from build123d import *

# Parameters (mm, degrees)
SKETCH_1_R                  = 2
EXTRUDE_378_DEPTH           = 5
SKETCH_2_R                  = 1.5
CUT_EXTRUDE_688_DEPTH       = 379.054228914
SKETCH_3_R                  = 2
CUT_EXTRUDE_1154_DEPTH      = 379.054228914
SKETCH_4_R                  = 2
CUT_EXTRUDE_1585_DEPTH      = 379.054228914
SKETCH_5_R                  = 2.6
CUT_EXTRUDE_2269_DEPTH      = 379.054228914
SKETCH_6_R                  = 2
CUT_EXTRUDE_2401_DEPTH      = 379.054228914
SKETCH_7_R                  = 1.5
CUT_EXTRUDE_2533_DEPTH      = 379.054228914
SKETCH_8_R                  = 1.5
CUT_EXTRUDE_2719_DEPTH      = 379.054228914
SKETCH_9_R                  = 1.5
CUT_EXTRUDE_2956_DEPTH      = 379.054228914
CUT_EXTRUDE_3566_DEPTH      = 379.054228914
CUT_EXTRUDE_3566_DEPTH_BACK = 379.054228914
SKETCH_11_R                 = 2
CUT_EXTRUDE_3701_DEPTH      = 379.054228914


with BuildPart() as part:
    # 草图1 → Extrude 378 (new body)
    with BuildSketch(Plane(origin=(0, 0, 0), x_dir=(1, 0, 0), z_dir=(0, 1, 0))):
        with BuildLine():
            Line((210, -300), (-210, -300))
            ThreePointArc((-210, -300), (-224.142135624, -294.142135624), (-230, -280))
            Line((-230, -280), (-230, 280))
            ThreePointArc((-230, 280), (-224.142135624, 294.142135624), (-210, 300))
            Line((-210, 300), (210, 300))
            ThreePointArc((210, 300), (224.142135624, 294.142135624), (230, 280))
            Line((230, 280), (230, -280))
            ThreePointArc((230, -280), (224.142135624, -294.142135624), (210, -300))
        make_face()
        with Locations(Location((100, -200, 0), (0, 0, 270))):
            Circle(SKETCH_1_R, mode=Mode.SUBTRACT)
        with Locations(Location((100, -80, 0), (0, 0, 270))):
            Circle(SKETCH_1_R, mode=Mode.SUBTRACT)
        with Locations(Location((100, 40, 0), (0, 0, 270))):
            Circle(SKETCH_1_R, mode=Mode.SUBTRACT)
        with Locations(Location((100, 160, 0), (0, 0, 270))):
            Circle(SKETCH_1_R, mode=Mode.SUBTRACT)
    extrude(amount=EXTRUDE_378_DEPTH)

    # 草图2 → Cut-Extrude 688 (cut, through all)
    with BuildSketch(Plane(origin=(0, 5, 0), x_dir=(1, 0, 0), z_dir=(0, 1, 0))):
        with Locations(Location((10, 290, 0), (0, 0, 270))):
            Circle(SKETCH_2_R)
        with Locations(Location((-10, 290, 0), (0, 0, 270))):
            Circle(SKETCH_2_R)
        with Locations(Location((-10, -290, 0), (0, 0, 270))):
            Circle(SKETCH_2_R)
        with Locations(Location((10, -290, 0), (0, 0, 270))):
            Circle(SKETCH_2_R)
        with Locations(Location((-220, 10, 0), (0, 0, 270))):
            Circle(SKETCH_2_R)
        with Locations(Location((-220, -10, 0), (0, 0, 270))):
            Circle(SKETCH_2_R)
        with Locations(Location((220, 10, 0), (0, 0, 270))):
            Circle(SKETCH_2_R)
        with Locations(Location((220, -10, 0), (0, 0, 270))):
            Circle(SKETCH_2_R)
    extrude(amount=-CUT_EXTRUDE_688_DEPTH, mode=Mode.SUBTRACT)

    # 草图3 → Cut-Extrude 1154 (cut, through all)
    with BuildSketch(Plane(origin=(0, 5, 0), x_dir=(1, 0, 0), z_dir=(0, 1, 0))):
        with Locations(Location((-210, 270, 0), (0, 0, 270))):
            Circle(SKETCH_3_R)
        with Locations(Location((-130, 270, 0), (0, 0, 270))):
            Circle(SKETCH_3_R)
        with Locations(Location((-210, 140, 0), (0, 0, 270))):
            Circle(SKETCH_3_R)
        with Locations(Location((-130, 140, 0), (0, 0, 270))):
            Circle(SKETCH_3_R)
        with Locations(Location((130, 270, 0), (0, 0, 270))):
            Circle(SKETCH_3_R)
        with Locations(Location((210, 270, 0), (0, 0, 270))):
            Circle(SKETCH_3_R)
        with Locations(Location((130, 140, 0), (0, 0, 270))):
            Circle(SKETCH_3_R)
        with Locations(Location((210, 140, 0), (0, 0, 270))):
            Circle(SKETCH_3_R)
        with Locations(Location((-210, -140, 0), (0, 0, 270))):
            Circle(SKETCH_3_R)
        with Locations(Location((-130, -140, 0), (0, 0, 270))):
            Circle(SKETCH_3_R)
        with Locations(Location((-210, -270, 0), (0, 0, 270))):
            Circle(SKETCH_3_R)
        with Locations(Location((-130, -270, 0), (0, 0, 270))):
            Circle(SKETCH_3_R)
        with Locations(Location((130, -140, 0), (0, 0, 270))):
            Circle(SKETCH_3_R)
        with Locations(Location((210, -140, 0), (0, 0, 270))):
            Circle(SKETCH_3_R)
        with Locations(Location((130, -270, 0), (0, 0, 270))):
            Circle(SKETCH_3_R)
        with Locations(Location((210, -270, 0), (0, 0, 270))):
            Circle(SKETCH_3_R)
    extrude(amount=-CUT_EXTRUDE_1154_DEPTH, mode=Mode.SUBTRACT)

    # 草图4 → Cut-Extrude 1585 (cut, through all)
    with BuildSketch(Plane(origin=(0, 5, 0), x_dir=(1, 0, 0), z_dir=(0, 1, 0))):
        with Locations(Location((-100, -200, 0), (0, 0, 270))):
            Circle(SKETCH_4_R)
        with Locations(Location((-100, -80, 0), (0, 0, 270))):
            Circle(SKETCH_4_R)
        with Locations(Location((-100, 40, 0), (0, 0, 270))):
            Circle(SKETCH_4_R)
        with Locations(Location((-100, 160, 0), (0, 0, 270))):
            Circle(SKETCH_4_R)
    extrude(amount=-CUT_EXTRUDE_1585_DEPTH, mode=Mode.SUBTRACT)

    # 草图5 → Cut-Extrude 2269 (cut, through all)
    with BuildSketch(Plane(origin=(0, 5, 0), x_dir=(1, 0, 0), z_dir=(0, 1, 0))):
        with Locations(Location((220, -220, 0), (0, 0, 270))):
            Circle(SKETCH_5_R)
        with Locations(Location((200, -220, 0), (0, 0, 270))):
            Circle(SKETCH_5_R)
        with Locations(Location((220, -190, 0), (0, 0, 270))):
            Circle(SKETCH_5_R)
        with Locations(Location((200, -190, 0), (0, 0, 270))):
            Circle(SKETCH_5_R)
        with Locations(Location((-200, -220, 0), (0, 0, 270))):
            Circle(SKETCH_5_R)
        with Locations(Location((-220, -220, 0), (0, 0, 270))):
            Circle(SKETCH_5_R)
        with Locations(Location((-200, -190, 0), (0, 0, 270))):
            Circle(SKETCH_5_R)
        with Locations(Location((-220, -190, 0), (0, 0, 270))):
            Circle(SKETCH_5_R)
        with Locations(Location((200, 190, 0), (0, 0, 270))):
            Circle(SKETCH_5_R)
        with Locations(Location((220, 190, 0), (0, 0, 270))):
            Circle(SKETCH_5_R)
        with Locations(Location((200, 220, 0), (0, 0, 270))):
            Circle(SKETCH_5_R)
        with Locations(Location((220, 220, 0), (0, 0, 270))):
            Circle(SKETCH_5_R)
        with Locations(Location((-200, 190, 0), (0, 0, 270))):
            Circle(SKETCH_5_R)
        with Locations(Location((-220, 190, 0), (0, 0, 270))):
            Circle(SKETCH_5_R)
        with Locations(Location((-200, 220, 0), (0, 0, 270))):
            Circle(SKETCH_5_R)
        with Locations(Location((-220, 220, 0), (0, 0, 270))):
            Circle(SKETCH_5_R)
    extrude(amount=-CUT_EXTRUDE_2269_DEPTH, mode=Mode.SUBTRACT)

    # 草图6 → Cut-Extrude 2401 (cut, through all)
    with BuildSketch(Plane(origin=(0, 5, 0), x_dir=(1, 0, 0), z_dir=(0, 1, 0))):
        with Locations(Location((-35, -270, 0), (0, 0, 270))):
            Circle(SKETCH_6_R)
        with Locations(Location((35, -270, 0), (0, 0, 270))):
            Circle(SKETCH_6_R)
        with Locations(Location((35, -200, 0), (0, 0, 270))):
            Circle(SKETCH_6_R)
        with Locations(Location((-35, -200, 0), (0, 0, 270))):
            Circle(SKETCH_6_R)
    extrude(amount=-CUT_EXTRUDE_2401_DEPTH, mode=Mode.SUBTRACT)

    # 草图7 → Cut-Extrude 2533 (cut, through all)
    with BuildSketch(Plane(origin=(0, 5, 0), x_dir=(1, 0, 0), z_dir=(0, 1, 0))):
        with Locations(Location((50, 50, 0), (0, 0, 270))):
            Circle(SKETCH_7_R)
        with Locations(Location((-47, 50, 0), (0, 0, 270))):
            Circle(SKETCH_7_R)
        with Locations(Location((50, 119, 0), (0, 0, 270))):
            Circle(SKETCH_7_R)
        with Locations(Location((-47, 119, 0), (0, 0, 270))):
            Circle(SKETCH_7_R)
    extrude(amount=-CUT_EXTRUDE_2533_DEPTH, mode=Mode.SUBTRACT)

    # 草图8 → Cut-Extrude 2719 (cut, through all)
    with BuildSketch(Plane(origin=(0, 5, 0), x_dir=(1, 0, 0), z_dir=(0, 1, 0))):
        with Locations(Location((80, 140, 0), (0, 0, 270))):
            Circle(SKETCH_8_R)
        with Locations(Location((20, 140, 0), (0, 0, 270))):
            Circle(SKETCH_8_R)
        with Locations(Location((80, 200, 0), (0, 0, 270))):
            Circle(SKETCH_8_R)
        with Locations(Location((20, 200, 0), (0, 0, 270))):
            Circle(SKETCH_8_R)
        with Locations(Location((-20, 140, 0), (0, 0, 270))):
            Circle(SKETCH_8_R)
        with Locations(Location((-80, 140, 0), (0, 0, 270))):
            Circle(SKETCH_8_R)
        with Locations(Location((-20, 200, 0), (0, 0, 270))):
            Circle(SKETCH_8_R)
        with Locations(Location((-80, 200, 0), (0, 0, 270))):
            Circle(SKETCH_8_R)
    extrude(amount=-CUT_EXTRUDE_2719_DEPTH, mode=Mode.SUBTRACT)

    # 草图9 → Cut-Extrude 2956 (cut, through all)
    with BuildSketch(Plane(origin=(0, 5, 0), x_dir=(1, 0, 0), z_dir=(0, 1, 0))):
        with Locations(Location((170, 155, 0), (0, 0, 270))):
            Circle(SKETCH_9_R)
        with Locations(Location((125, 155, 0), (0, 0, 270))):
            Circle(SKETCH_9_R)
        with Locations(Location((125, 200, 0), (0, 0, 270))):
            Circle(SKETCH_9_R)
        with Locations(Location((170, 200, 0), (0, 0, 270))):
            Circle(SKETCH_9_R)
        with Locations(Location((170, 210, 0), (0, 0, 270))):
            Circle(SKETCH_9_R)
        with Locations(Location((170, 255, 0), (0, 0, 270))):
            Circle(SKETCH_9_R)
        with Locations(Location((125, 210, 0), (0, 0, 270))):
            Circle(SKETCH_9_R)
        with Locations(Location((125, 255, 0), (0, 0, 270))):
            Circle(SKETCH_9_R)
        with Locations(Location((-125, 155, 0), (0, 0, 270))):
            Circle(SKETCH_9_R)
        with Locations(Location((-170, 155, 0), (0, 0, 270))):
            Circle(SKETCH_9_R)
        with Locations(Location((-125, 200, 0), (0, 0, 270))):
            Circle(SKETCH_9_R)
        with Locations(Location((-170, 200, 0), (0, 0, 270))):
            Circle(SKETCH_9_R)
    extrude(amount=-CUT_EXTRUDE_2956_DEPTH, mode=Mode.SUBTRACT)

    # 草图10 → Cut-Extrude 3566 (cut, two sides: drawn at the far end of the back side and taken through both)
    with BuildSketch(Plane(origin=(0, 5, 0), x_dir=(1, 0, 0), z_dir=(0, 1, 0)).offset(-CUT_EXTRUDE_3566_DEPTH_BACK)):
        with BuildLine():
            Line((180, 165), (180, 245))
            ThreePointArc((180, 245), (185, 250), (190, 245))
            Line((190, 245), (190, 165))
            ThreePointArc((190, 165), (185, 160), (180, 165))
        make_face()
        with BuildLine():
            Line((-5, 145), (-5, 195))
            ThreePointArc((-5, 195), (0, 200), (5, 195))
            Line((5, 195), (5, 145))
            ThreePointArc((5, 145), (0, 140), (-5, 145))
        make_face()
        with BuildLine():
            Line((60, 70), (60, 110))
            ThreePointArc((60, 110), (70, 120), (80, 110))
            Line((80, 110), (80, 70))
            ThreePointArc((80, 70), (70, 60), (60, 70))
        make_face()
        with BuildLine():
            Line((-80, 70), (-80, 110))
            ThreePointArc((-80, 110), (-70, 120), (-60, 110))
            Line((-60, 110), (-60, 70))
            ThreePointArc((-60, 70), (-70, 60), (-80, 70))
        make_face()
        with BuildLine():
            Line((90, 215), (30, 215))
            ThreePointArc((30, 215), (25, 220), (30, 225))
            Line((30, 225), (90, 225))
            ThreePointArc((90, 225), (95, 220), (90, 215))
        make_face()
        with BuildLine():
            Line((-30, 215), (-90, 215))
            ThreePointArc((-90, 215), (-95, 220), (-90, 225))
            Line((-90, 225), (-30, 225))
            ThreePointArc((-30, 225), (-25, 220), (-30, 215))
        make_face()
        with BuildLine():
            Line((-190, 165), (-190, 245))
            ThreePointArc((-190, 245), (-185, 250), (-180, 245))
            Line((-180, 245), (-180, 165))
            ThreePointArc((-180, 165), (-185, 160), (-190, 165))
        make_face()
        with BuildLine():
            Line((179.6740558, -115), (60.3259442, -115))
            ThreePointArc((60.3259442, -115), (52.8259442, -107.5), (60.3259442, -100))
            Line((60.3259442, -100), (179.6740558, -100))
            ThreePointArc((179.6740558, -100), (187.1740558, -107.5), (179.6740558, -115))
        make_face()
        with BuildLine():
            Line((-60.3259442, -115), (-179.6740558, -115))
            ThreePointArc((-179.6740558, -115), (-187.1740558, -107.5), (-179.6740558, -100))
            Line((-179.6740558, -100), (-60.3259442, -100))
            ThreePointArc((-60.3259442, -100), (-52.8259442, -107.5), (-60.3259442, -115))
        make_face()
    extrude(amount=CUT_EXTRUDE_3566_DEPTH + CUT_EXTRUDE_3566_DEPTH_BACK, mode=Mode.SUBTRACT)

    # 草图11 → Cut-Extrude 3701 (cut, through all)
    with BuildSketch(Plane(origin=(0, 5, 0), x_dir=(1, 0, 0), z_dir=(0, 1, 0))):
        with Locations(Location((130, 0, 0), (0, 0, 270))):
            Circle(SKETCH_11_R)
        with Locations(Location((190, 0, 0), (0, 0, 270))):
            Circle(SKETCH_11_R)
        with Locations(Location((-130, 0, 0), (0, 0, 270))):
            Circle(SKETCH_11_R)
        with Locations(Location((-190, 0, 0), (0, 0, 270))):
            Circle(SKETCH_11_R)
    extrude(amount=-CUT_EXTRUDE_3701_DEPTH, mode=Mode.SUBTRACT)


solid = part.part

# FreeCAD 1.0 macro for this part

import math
import FreeCAD as App
import Part
import Sketcher

doc = App.newDocument("Part")
body = doc.addObject("PartDesign::Body", "Body")

# Sketch on XZ plane
sketch1 = body.newObject("Sketcher::SketchObject", "Sketch")
sketch1.AttachmentSupport = (doc.getObject("XZ_Plane"), [""])
sketch1.MapMode = "FlatFace"
sketch1.addGeometry([
    Part.LineSegment(App.Vector(-210, 300, 0), App.Vector(210, 300, 0)),  # 0
    Part.ArcOfCircle(Part.Circle(App.Vector(210, 280, 0), App.Vector(0, 0, 1), 20), math.radians(0), math.radians(90)),  # 1
    Part.LineSegment(App.Vector(230, 280, 0), App.Vector(230, -280, 0)),  # 2
    Part.ArcOfCircle(Part.Circle(App.Vector(210, -280, 0), App.Vector(0, 0, 1), 20), math.radians(-90), math.radians(0)),  # 3
    Part.LineSegment(App.Vector(210, -300, 0), App.Vector(-210, -300, 0)),  # 4
    Part.ArcOfCircle(Part.Circle(App.Vector(-210, -280, 0), App.Vector(0, 0, 1), 20), math.radians(180), math.radians(270)),  # 5
    Part.LineSegment(App.Vector(-230, -280, 0), App.Vector(-230, 280, 0)),  # 6
    Part.ArcOfCircle(Part.Circle(App.Vector(-210, 280, 0), App.Vector(0, 0, 1), 20), math.radians(90), math.radians(180)),  # 7
    Part.Circle(App.Vector(100, 200, 0), App.Vector(0, 0, 1), 2),  # 8
    Part.Circle(App.Vector(100, 80, 0), App.Vector(0, 0, 1), 2),  # 9
    Part.Circle(App.Vector(100, -40, 0), App.Vector(0, 0, 1), 2),  # 10
    Part.Circle(App.Vector(100, -160, 0), App.Vector(0, 0, 1), 2),  # 11
], False)
sketch1.addConstraint([
    Sketcher.Constraint("Tangent", 0, 2, 1, 2),
    Sketcher.Constraint("Tangent", 1, 1, 2, 1),
    Sketcher.Constraint("Tangent", 2, 2, 3, 2),
    Sketcher.Constraint("Tangent", 3, 1, 4, 1),
    Sketcher.Constraint("Tangent", 4, 2, 5, 2),
    Sketcher.Constraint("Tangent", 5, 1, 6, 1),
    Sketcher.Constraint("Tangent", 6, 2, 7, 2),
    Sketcher.Constraint("Tangent", 7, 1, 0, 1),
    Sketcher.Constraint("Horizontal", 0),
    Sketcher.Constraint("Vertical", 2),
    Sketcher.Constraint("Horizontal", 4),
    Sketcher.Constraint("Vertical", 6),
    Sketcher.Constraint("Equal", 1, 3),
    Sketcher.Constraint("Equal", 3, 5),
    Sketcher.Constraint("Equal", 5, 7),
    Sketcher.Constraint("Equal", 8, 9),
    Sketcher.Constraint("Equal", 9, 10),
    Sketcher.Constraint("Equal", 10, 11),
    Sketcher.Constraint("Symmetric", 1, 3, 5, 3, -1, 1),
    Sketcher.Constraint("Vertical", 8, 3, 9, 3),
    Sketcher.Constraint("Vertical", 9, 3, 10, 3),
    Sketcher.Constraint("Vertical", 10, 3, 11, 3),
    Sketcher.Constraint("Diameter", 8, 4.0),
    Sketcher.Constraint("Radius", 1, 20.0),
    Sketcher.Constraint("DistanceX", 0, 1, 0, 2, 420.0),
    Sketcher.Constraint("DistanceY", 2, 2, 2, 1, 560.0),
    Sketcher.Constraint("DistanceX", -1, 1, 8, 3, 100.0),
    Sketcher.Constraint("DistanceY", -1, 1, 8, 3, 200.0),
    Sketcher.Constraint("DistanceY", -1, 1, 9, 3, 80.0),
    Sketcher.Constraint("DistanceY", 10, 3, -1, 1, 40.0),
    Sketcher.Constraint("DistanceY", 11, 3, -1, 1, 160.0),
])
pad1 = body.newObject("PartDesign::Pad", "Pad")
pad1.Profile = sketch1
pad1.Length = 5
pad1.Reversed = True

# Sketch on XZ plane
sketch2 = body.newObject("Sketcher::SketchObject", "Sketch001")
sketch2.AttachmentSupport = (doc.getObject("XZ_Plane"), [""])
sketch2.MapMode = "FlatFace"
sketch2.AttachmentOffset = App.Placement(App.Vector(0, 0, -5), App.Rotation())
sketch2.addGeometry([
    Part.Circle(App.Vector(10, -290, 0), App.Vector(0, 0, 1), 1.5),  # 0
    Part.Circle(App.Vector(-10, -290, 0), App.Vector(0, 0, 1), 1.5),  # 1
    Part.Circle(App.Vector(-10, 290, 0), App.Vector(0, 0, 1), 1.5),  # 2
    Part.Circle(App.Vector(10, 290, 0), App.Vector(0, 0, 1), 1.5),  # 3
    Part.Circle(App.Vector(-220, -10, 0), App.Vector(0, 0, 1), 1.5),  # 4
    Part.Circle(App.Vector(-220, 10, 0), App.Vector(0, 0, 1), 1.5),  # 5
    Part.Circle(App.Vector(220, -10, 0), App.Vector(0, 0, 1), 1.5),  # 6
    Part.Circle(App.Vector(220, 10, 0), App.Vector(0, 0, 1), 1.5),  # 7
], False)
sketch2.addConstraint([
    Sketcher.Constraint("Equal", 0, 1),
    Sketcher.Constraint("Equal", 1, 2),
    Sketcher.Constraint("Equal", 2, 3),
    Sketcher.Constraint("Equal", 3, 4),
    Sketcher.Constraint("Equal", 4, 5),
    Sketcher.Constraint("Equal", 5, 6),
    Sketcher.Constraint("Equal", 6, 7),
    Sketcher.Constraint("Symmetric", 0, 3, 2, 3, -1, 1),
    Sketcher.Constraint("Symmetric", 1, 3, 3, 3, -1, 1),
    Sketcher.Constraint("Symmetric", 5, 3, 6, 3, -1, 1),
    Sketcher.Constraint("Symmetric", 4, 3, 7, 3, -1, 1),
    Sketcher.Constraint("Symmetric", 0, 3, 1, 3, -2),
    Sketcher.Constraint("Symmetric", 4, 3, 6, 3, -2),
    Sketcher.Constraint("Diameter", 0, 3.0),
    Sketcher.Constraint("DistanceX", -1, 1, 0, 3, 10.0),
    Sketcher.Constraint("DistanceY", 0, 3, -1, 1, 290.0),
    Sketcher.Constraint("DistanceX", 4, 3, -1, 1, 220.0),
    Sketcher.Constraint("DistanceY", 4, 3, -1, 1, 10.0),
])
pocket1 = body.newObject("PartDesign::Pocket", "Pocket")
pocket1.Profile = sketch2
pocket1.Type = "ThroughAll"
pocket1.Reversed = True

# Sketch on XZ plane
sketch3 = body.newObject("Sketcher::SketchObject", "Sketch002")
sketch3.AttachmentSupport = (doc.getObject("XZ_Plane"), [""])
sketch3.MapMode = "FlatFace"
sketch3.AttachmentOffset = App.Placement(App.Vector(0, 0, -5), App.Rotation())
sketch3.addGeometry([
    Part.Circle(App.Vector(-210, -270, 0), App.Vector(0, 0, 1), 2),  # 0
    Part.Circle(App.Vector(-130, -270, 0), App.Vector(0, 0, 1), 2),  # 1
    Part.Circle(App.Vector(-210, -140, 0), App.Vector(0, 0, 1), 2),  # 2
    Part.Circle(App.Vector(-130, -140, 0), App.Vector(0, 0, 1), 2),  # 3
    Part.Circle(App.Vector(130, -270, 0), App.Vector(0, 0, 1), 2),  # 4
    Part.Circle(App.Vector(210, -270, 0), App.Vector(0, 0, 1), 2),  # 5
    Part.Circle(App.Vector(130, -140, 0), App.Vector(0, 0, 1), 2),  # 6
    Part.Circle(App.Vector(210, -140, 0), App.Vector(0, 0, 1), 2),  # 7
    Part.Circle(App.Vector(-210, 140, 0), App.Vector(0, 0, 1), 2),  # 8
    Part.Circle(App.Vector(-130, 140, 0), App.Vector(0, 0, 1), 2),  # 9
    Part.Circle(App.Vector(-210, 270, 0), App.Vector(0, 0, 1), 2),  # 10
    Part.Circle(App.Vector(-130, 270, 0), App.Vector(0, 0, 1), 2),  # 11
    Part.Circle(App.Vector(130, 140, 0), App.Vector(0, 0, 1), 2),  # 12
    Part.Circle(App.Vector(210, 140, 0), App.Vector(0, 0, 1), 2),  # 13
    Part.Circle(App.Vector(130, 270, 0), App.Vector(0, 0, 1), 2),  # 14
    Part.Circle(App.Vector(210, 270, 0), App.Vector(0, 0, 1), 2),  # 15
], False)
sketch3.addConstraint([
    Sketcher.Constraint("Equal", 0, 1),
    Sketcher.Constraint("Equal", 1, 2),
    Sketcher.Constraint("Equal", 2, 3),
    Sketcher.Constraint("Equal", 3, 4),
    Sketcher.Constraint("Equal", 4, 5),
    Sketcher.Constraint("Equal", 5, 6),
    Sketcher.Constraint("Equal", 6, 7),
    Sketcher.Constraint("Equal", 7, 8),
    Sketcher.Constraint("Equal", 8, 9),
    Sketcher.Constraint("Equal", 9, 10),
    Sketcher.Constraint("Equal", 10, 11),
    Sketcher.Constraint("Equal", 11, 12),
    Sketcher.Constraint("Equal", 12, 13),
    Sketcher.Constraint("Equal", 13, 14),
    Sketcher.Constraint("Equal", 14, 15),
    Sketcher.Constraint("Symmetric", 7, 3, 8, 3, -1, 1),
    Sketcher.Constraint("Symmetric", 6, 3, 9, 3, -1, 1),
    Sketcher.Constraint("Symmetric", 5, 3, 10, 3, -1, 1),
    Sketcher.Constraint("Symmetric", 4, 3, 11, 3, -1, 1),
    Sketcher.Constraint("Symmetric", 3, 3, 12, 3, -1, 1),
    Sketcher.Constraint("Symmetric", 2, 3, 13, 3, -1, 1),
    Sketcher.Constraint("Symmetric", 1, 3, 14, 3, -1, 1),
    Sketcher.Constraint("Symmetric", 0, 3, 15, 3, -1, 1),
    Sketcher.Constraint("Symmetric", 1, 3, 4, 3, -2),
    Sketcher.Constraint("Symmetric", 0, 3, 5, 3, -2),
    Sketcher.Constraint("Symmetric", 3, 3, 6, 3, -2),
    Sketcher.Constraint("Symmetric", 2, 3, 7, 3, -2),
    Sketcher.Constraint("Horizontal", 0, 3, 1, 3),
    Sketcher.Constraint("Horizontal", 2, 3, 3, 3),
    Sketcher.Constraint("Vertical", 0, 3, 2, 3),
    Sketcher.Constraint("Vertical", 1, 3, 3, 3),
    Sketcher.Constraint("Diameter", 0, 4.0),
    Sketcher.Constraint("DistanceX", 0, 3, -1, 1, 210.0),
    Sketcher.Constraint("DistanceY", 0, 3, -1, 1, 270.0),
    Sketcher.Constraint("DistanceX", 1, 3, -1, 1, 130.0),
    Sketcher.Constraint("DistanceY", 2, 3, -1, 1, 140.0),
])
pocket2 = body.newObject("PartDesign::Pocket", "Pocket001")
pocket2.Profile = sketch3
pocket2.Type = "ThroughAll"
pocket2.Reversed = True

# Sketch on XZ plane
sketch4 = body.newObject("Sketcher::SketchObject", "Sketch003")
sketch4.AttachmentSupport = (doc.getObject("XZ_Plane"), [""])
sketch4.MapMode = "FlatFace"
sketch4.AttachmentOffset = App.Placement(App.Vector(0, 0, -5), App.Rotation())
sketch4.addGeometry([
    Part.Circle(App.Vector(-100, 200, 0), App.Vector(0, 0, 1), 2),
    Part.Circle(App.Vector(-100, 80, 0), App.Vector(0, 0, 1), 2),
    Part.Circle(App.Vector(-100, -40, 0), App.Vector(0, 0, 1), 2),
    Part.Circle(App.Vector(-100, -160, 0), App.Vector(0, 0, 1), 2),
], False)
sketch4.addConstraint([
    Sketcher.Constraint("Equal", 0, 1),
    Sketcher.Constraint("Equal", 1, 2),
    Sketcher.Constraint("Equal", 2, 3),
    Sketcher.Constraint("Vertical", 0, 3, 1, 3),
    Sketcher.Constraint("Vertical", 1, 3, 2, 3),
    Sketcher.Constraint("Vertical", 2, 3, 3, 3),
    Sketcher.Constraint("Diameter", 0, 4.0),
    Sketcher.Constraint("DistanceX", 0, 3, -1, 1, 100.0),
    Sketcher.Constraint("DistanceY", -1, 1, 0, 3, 200.0),
    Sketcher.Constraint("DistanceY", -1, 1, 1, 3, 80.0),
    Sketcher.Constraint("DistanceY", 2, 3, -1, 1, 40.0),
    Sketcher.Constraint("DistanceY", 3, 3, -1, 1, 160.0),
])
pocket3 = body.newObject("PartDesign::Pocket", "Pocket002")
pocket3.Profile = sketch4
pocket3.Type = "ThroughAll"
pocket3.Reversed = True

# Sketch on XZ plane
sketch5 = body.newObject("Sketcher::SketchObject", "Sketch004")
sketch5.AttachmentSupport = (doc.getObject("XZ_Plane"), [""])
sketch5.MapMode = "FlatFace"
sketch5.AttachmentOffset = App.Placement(App.Vector(0, 0, -5), App.Rotation())
sketch5.addGeometry([
    Part.Circle(App.Vector(220, 220, 0), App.Vector(0, 0, 1), 2.6),  # 0
    Part.Circle(App.Vector(200, 220, 0), App.Vector(0, 0, 1), 2.6),  # 1
    Part.Circle(App.Vector(220, 190, 0), App.Vector(0, 0, 1), 2.6),  # 2
    Part.Circle(App.Vector(200, 190, 0), App.Vector(0, 0, 1), 2.6),  # 3
    Part.Circle(App.Vector(-200, 220, 0), App.Vector(0, 0, 1), 2.6),  # 4
    Part.Circle(App.Vector(-220, 220, 0), App.Vector(0, 0, 1), 2.6),  # 5
    Part.Circle(App.Vector(-200, 190, 0), App.Vector(0, 0, 1), 2.6),  # 6
    Part.Circle(App.Vector(-220, 190, 0), App.Vector(0, 0, 1), 2.6),  # 7
    Part.Circle(App.Vector(200, -190, 0), App.Vector(0, 0, 1), 2.6),  # 8
    Part.Circle(App.Vector(220, -190, 0), App.Vector(0, 0, 1), 2.6),  # 9
    Part.Circle(App.Vector(200, -220, 0), App.Vector(0, 0, 1), 2.6),  # 10
    Part.Circle(App.Vector(220, -220, 0), App.Vector(0, 0, 1), 2.6),  # 11
    Part.Circle(App.Vector(-200, -190, 0), App.Vector(0, 0, 1), 2.6),  # 12
    Part.Circle(App.Vector(-220, -190, 0), App.Vector(0, 0, 1), 2.6),  # 13
    Part.Circle(App.Vector(-200, -220, 0), App.Vector(0, 0, 1), 2.6),  # 14
    Part.Circle(App.Vector(-220, -220, 0), App.Vector(0, 0, 1), 2.6),  # 15
], False)
sketch5.addConstraint([
    Sketcher.Constraint("Equal", 0, 1),
    Sketcher.Constraint("Equal", 1, 2),
    Sketcher.Constraint("Equal", 2, 3),
    Sketcher.Constraint("Equal", 3, 4),
    Sketcher.Constraint("Equal", 4, 5),
    Sketcher.Constraint("Equal", 5, 6),
    Sketcher.Constraint("Equal", 6, 7),
    Sketcher.Constraint("Equal", 7, 8),
    Sketcher.Constraint("Equal", 8, 9),
    Sketcher.Constraint("Equal", 9, 10),
    Sketcher.Constraint("Equal", 10, 11),
    Sketcher.Constraint("Equal", 11, 12),
    Sketcher.Constraint("Equal", 12, 13),
    Sketcher.Constraint("Equal", 13, 14),
    Sketcher.Constraint("Equal", 14, 15),
    Sketcher.Constraint("Symmetric", 6, 3, 8, 3, -1, 1),
    Sketcher.Constraint("Symmetric", 7, 3, 9, 3, -1, 1),
    Sketcher.Constraint("Symmetric", 4, 3, 10, 3, -1, 1),
    Sketcher.Constraint("Symmetric", 5, 3, 11, 3, -1, 1),
    Sketcher.Constraint("Symmetric", 3, 3, 12, 3, -1, 1),
    Sketcher.Constraint("Symmetric", 2, 3, 13, 3, -1, 1),
    Sketcher.Constraint("Symmetric", 1, 3, 14, 3, -1, 1),
    Sketcher.Constraint("Symmetric", 0, 3, 15, 3, -1, 1),
    Sketcher.Constraint("Symmetric", 1, 3, 4, 3, -2),
    Sketcher.Constraint("Symmetric", 0, 3, 5, 3, -2),
    Sketcher.Constraint("Symmetric", 3, 3, 6, 3, -2),
    Sketcher.Constraint("Symmetric", 2, 3, 7, 3, -2),
    Sketcher.Constraint("Horizontal", 0, 3, 1, 3),
    Sketcher.Constraint("Horizontal", 2, 3, 3, 3),
    Sketcher.Constraint("Vertical", 0, 3, 2, 3),
    Sketcher.Constraint("Vertical", 1, 3, 3, 3),
    Sketcher.Constraint("Diameter", 0, 5.2),
    Sketcher.Constraint("DistanceX", -1, 1, 0, 3, 220.0),
    Sketcher.Constraint("DistanceY", -1, 1, 0, 3, 220.0),
    Sketcher.Constraint("DistanceX", -1, 1, 1, 3, 200.0),
    Sketcher.Constraint("DistanceY", -1, 1, 2, 3, 190.0),
])
pocket4 = body.newObject("PartDesign::Pocket", "Pocket003")
pocket4.Profile = sketch5
pocket4.Type = "ThroughAll"
pocket4.Reversed = True

# Sketch on XZ plane
sketch6 = body.newObject("Sketcher::SketchObject", "Sketch005")
sketch6.AttachmentSupport = (doc.getObject("XZ_Plane"), [""])
sketch6.MapMode = "FlatFace"
sketch6.AttachmentOffset = App.Placement(App.Vector(0, 0, -5), App.Rotation())
sketch6.addGeometry([
    Part.Circle(App.Vector(-35, 270, 0), App.Vector(0, 0, 1), 2),
    Part.Circle(App.Vector(35, 270, 0), App.Vector(0, 0, 1), 2),
    Part.Circle(App.Vector(35, 200, 0), App.Vector(0, 0, 1), 2),
    Part.Circle(App.Vector(-35, 200, 0), App.Vector(0, 0, 1), 2),
], False)
sketch6.addConstraint([
    Sketcher.Constraint("Equal", 0, 1),
    Sketcher.Constraint("Equal", 1, 2),
    Sketcher.Constraint("Equal", 2, 3),
    Sketcher.Constraint("Symmetric", 0, 3, 1, 3, -2),
    Sketcher.Constraint("Symmetric", 2, 3, 3, 3, -2),
    Sketcher.Constraint("Vertical", 1, 3, 2, 3),
    Sketcher.Constraint("Diameter", 0, 4.0),
    Sketcher.Constraint("DistanceX", 0, 3, -1, 1, 35.0),
    Sketcher.Constraint("DistanceY", -1, 1, 0, 3, 270.0),
    Sketcher.Constraint("DistanceY", -1, 1, 2, 3, 200.0),
])
pocket5 = body.newObject("PartDesign::Pocket", "Pocket004")
pocket5.Profile = sketch6
pocket5.Type = "ThroughAll"
pocket5.Reversed = True

# Sketch on XZ plane
sketch7 = body.newObject("Sketcher::SketchObject", "Sketch006")
sketch7.AttachmentSupport = (doc.getObject("XZ_Plane"), [""])
sketch7.MapMode = "FlatFace"
sketch7.AttachmentOffset = App.Placement(App.Vector(0, 0, -5), App.Rotation())
sketch7.addGeometry([
    Part.Circle(App.Vector(50, -50, 0), App.Vector(0, 0, 1), 1.5),
    Part.Circle(App.Vector(-47, -50, 0), App.Vector(0, 0, 1), 1.5),
    Part.Circle(App.Vector(50, -119, 0), App.Vector(0, 0, 1), 1.5),
    Part.Circle(App.Vector(-47, -119, 0), App.Vector(0, 0, 1), 1.5),
], False)
sketch7.addConstraint([
    Sketcher.Constraint("Equal", 0, 1),
    Sketcher.Constraint("Equal", 1, 2),
    Sketcher.Constraint("Equal", 2, 3),
    Sketcher.Constraint("Horizontal", 0, 3, 1, 3),
    Sketcher.Constraint("Horizontal", 2, 3, 3, 3),
    Sketcher.Constraint("Vertical", 0, 3, 2, 3),
    Sketcher.Constraint("Vertical", 1, 3, 3, 3),
    Sketcher.Constraint("Diameter", 0, 3.0),
    Sketcher.Constraint("DistanceX", -1, 1, 0, 3, 50.0),
    Sketcher.Constraint("DistanceY", 0, 3, -1, 1, 50.0),
    Sketcher.Constraint("DistanceX", 1, 3, -1, 1, 47.0),
    Sketcher.Constraint("DistanceY", 2, 3, -1, 1, 119.0),
])
pocket6 = body.newObject("PartDesign::Pocket", "Pocket005")
pocket6.Profile = sketch7
pocket6.Type = "ThroughAll"
pocket6.Reversed = True

# Sketch on XZ plane
sketch8 = body.newObject("Sketcher::SketchObject", "Sketch007")
sketch8.AttachmentSupport = (doc.getObject("XZ_Plane"), [""])
sketch8.MapMode = "FlatFace"
sketch8.AttachmentOffset = App.Placement(App.Vector(0, 0, -5), App.Rotation())
sketch8.addGeometry([
    Part.Circle(App.Vector(80, -140, 0), App.Vector(0, 0, 1), 1.5),  # 0
    Part.Circle(App.Vector(20, -140, 0), App.Vector(0, 0, 1), 1.5),  # 1
    Part.Circle(App.Vector(80, -200, 0), App.Vector(0, 0, 1), 1.5),  # 2
    Part.Circle(App.Vector(20, -200, 0), App.Vector(0, 0, 1), 1.5),  # 3
    Part.Circle(App.Vector(-20, -140, 0), App.Vector(0, 0, 1), 1.5),  # 4
    Part.Circle(App.Vector(-80, -140, 0), App.Vector(0, 0, 1), 1.5),  # 5
    Part.Circle(App.Vector(-20, -200, 0), App.Vector(0, 0, 1), 1.5),  # 6
    Part.Circle(App.Vector(-80, -200, 0), App.Vector(0, 0, 1), 1.5),  # 7
], False)
sketch8.addConstraint([
    Sketcher.Constraint("Equal", 0, 1),
    Sketcher.Constraint("Equal", 1, 2),
    Sketcher.Constraint("Equal", 2, 3),
    Sketcher.Constraint("Equal", 3, 4),
    Sketcher.Constraint("Equal", 4, 5),
    Sketcher.Constraint("Equal", 5, 6),
    Sketcher.Constraint("Equal", 6, 7),
    Sketcher.Constraint("Symmetric", 1, 3, 4, 3, -2),
    Sketcher.Constraint("Symmetric", 0, 3, 5, 3, -2),
    Sketcher.Constraint("Symmetric", 3, 3, 6, 3, -2),
    Sketcher.Constraint("Symmetric", 2, 3, 7, 3, -2),
    Sketcher.Constraint("Horizontal", 0, 3, 1, 3),
    Sketcher.Constraint("Horizontal", 2, 3, 3, 3),
    Sketcher.Constraint("Vertical", 0, 3, 2, 3),
    Sketcher.Constraint("Vertical", 1, 3, 3, 3),
    Sketcher.Constraint("Diameter", 0, 3.0),
    Sketcher.Constraint("DistanceX", -1, 1, 0, 3, 80.0),
    Sketcher.Constraint("DistanceY", 0, 3, -1, 1, 140.0),
    Sketcher.Constraint("DistanceX", -1, 1, 1, 3, 20.0),
    Sketcher.Constraint("DistanceY", 2, 3, -1, 1, 200.0),
])
pocket7 = body.newObject("PartDesign::Pocket", "Pocket006")
pocket7.Profile = sketch8
pocket7.Type = "ThroughAll"
pocket7.Reversed = True

# Sketch on XZ plane
sketch9 = body.newObject("Sketcher::SketchObject", "Sketch008")
sketch9.AttachmentSupport = (doc.getObject("XZ_Plane"), [""])
sketch9.MapMode = "FlatFace"
sketch9.AttachmentOffset = App.Placement(App.Vector(0, 0, -5), App.Rotation())
sketch9.addGeometry([
    Part.Circle(App.Vector(170, -155, 0), App.Vector(0, 0, 1), 1.5),  # 0
    Part.Circle(App.Vector(125, -155, 0), App.Vector(0, 0, 1), 1.5),  # 1
    Part.Circle(App.Vector(125, -200, 0), App.Vector(0, 0, 1), 1.5),  # 2
    Part.Circle(App.Vector(170, -200, 0), App.Vector(0, 0, 1), 1.5),  # 3
    Part.Circle(App.Vector(170, -210, 0), App.Vector(0, 0, 1), 1.5),  # 4
    Part.Circle(App.Vector(170, -255, 0), App.Vector(0, 0, 1), 1.5),  # 5
    Part.Circle(App.Vector(125, -210, 0), App.Vector(0, 0, 1), 1.5),  # 6
    Part.Circle(App.Vector(125, -255, 0), App.Vector(0, 0, 1), 1.5),  # 7
    Part.Circle(App.Vector(-125, -155, 0), App.Vector(0, 0, 1), 1.5),  # 8
    Part.Circle(App.Vector(-170, -155, 0), App.Vector(0, 0, 1), 1.5),  # 9
    Part.Circle(App.Vector(-125, -200, 0), App.Vector(0, 0, 1), 1.5),  # 10
    Part.Circle(App.Vector(-170, -200, 0), App.Vector(0, 0, 1), 1.5),  # 11
], False)
sketch9.addConstraint([
    Sketcher.Constraint("Equal", 0, 1),
    Sketcher.Constraint("Equal", 1, 2),
    Sketcher.Constraint("Equal", 2, 3),
    Sketcher.Constraint("Equal", 3, 4),
    Sketcher.Constraint("Equal", 4, 5),
    Sketcher.Constraint("Equal", 5, 6),
    Sketcher.Constraint("Equal", 6, 7),
    Sketcher.Constraint("Equal", 7, 8),
    Sketcher.Constraint("Equal", 8, 9),
    Sketcher.Constraint("Equal", 9, 10),
    Sketcher.Constraint("Equal", 10, 11),
    Sketcher.Constraint("Symmetric", 1, 3, 8, 3, -2),
    Sketcher.Constraint("Symmetric", 0, 3, 9, 3, -2),
    Sketcher.Constraint("Symmetric", 2, 3, 10, 3, -2),
    Sketcher.Constraint("Symmetric", 3, 3, 11, 3, -2),
    Sketcher.Constraint("Horizontal", 0, 3, 1, 3),
    Sketcher.Constraint("Horizontal", 2, 3, 3, 3),
    Sketcher.Constraint("Horizontal", 4, 3, 6, 3),
    Sketcher.Constraint("Horizontal", 5, 3, 7, 3),
    Sketcher.Constraint("Vertical", 1, 3, 2, 3),
    Sketcher.Constraint("Vertical", 0, 3, 3, 3),
    Sketcher.Constraint("Vertical", 3, 3, 4, 3),
    Sketcher.Constraint("Vertical", 4, 3, 5, 3),
    Sketcher.Constraint("Vertical", 2, 3, 6, 3),
    Sketcher.Constraint("Vertical", 6, 3, 7, 3),
    Sketcher.Constraint("Diameter", 0, 3.0),
    Sketcher.Constraint("DistanceX", -1, 1, 0, 3, 170.0),
    Sketcher.Constraint("DistanceY", 0, 3, -1, 1, 155.0),
    Sketcher.Constraint("DistanceX", -1, 1, 1, 3, 125.0),
    Sketcher.Constraint("DistanceY", 2, 3, -1, 1, 200.0),
    Sketcher.Constraint("DistanceY", 4, 3, -1, 1, 210.0),
    Sketcher.Constraint("DistanceY", 5, 3, -1, 1, 255.0),
])
pocket8 = body.newObject("PartDesign::Pocket", "Pocket007")
pocket8.Profile = sketch9
pocket8.Type = "ThroughAll"
pocket8.Reversed = True

# Sketch on XZ plane
sketch10 = body.newObject("Sketcher::SketchObject", "Sketch009")
sketch10.AttachmentSupport = (doc.getObject("XZ_Plane"), [""])
sketch10.MapMode = "FlatFace"
sketch10.AttachmentOffset = App.Placement(App.Vector(0, 0, -5), App.Rotation())
sketch10.addGeometry([
    Part.LineSegment(App.Vector(180, -245, 0), App.Vector(180, -165, 0)),  # 0
    Part.ArcOfCircle(Part.Circle(App.Vector(185, -165, 0), App.Vector(0, 0, 1), 5), math.radians(0), math.radians(180)),  # 1
    Part.LineSegment(App.Vector(190, -165, 0), App.Vector(190, -245, 0)),  # 2
    Part.ArcOfCircle(Part.Circle(App.Vector(185, -245, 0), App.Vector(0, 0, 1), 5), math.radians(180), math.radians(360)),  # 3
    Part.LineSegment(App.Vector(-5, -195, 0), App.Vector(-5, -145, 0)),  # 4
    Part.ArcOfCircle(Part.Circle(App.Vector(0, -145, 0), App.Vector(0, 0, 1), 5), math.radians(0), math.radians(180)),  # 5
    Part.LineSegment(App.Vector(5, -145, 0), App.Vector(5, -195, 0)),  # 6
    Part.ArcOfCircle(Part.Circle(App.Vector(0, -195, 0), App.Vector(0, 0, 1), 5), math.radians(180), math.radians(360)),  # 7
    Part.LineSegment(App.Vector(60, -110, 0), App.Vector(60, -70, 0)),  # 8
    Part.ArcOfCircle(Part.Circle(App.Vector(70, -70, 0), App.Vector(0, 0, 1), 10), math.radians(0), math.radians(180)),  # 9
    Part.LineSegment(App.Vector(80, -70, 0), App.Vector(80, -110, 0)),  # 10
    Part.ArcOfCircle(Part.Circle(App.Vector(70, -110, 0), App.Vector(0, 0, 1), 10), math.radians(180), math.radians(360)),  # 11
    Part.LineSegment(App.Vector(-80, -110, 0), App.Vector(-80, -70, 0)),  # 12
    Part.ArcOfCircle(Part.Circle(App.Vector(-70, -70, 0), App.Vector(0, 0, 1), 10), math.radians(0), math.radians(180)),  # 13
    Part.LineSegment(App.Vector(-60, -70, 0), App.Vector(-60, -110, 0)),  # 14
    Part.ArcOfCircle(Part.Circle(App.Vector(-70, -110, 0), App.Vector(0, 0, 1), 10), math.radians(180), math.radians(360)),  # 15
    Part.LineSegment(App.Vector(30, -215, 0), App.Vector(90, -215, 0)),  # 16
    Part.ArcOfCircle(Part.Circle(App.Vector(90, -220, 0), App.Vector(0, 0, 1), 5), math.radians(-90), math.radians(90)),  # 17
    Part.LineSegment(App.Vector(90, -225, 0), App.Vector(30, -225, 0)),  # 18
    Part.ArcOfCircle(Part.Circle(App.Vector(30, -220, 0), App.Vector(0, 0, 1), 5), math.radians(90), math.radians(270)),  # 19
    Part.LineSegment(App.Vector(-90, -215, 0), App.Vector(-30, -215, 0)),  # 20
    Part.ArcOfCircle(Part.Circle(App.Vector(-30, -220, 0), App.Vector(0, 0, 1), 5), math.radians(-90), math.radians(90)),  # 21
    Part.LineSegment(App.Vector(-30, -225, 0), App.Vector(-90, -225, 0)),  # 22
    Part.ArcOfCircle(Part.Circle(App.Vector(-90, -220, 0), App.Vector(0, 0, 1), 5), math.radians(90), math.radians(270)),  # 23
    Part.LineSegment(App.Vector(-190, -245, 0), App.Vector(-190, -165, 0)),  # 24
    Part.ArcOfCircle(Part.Circle(App.Vector(-185, -165, 0), App.Vector(0, 0, 1), 5), math.radians(0), math.radians(180)),  # 25
    Part.LineSegment(App.Vector(-180, -165, 0), App.Vector(-180, -245, 0)),  # 26
    Part.ArcOfCircle(Part.Circle(App.Vector(-185, -245, 0), App.Vector(0, 0, 1), 5), math.radians(180), math.radians(360)),  # 27
    Part.LineSegment(App.Vector(60, 115, 0), App.Vector(180, 115, 0)),  # 28
    Part.ArcOfCircle(Part.Circle(App.Vector(180, 108, 0), App.Vector(0, 0, 1), 8), math.radians(-90), math.radians(90)),  # 29
    Part.LineSegment(App.Vector(180, 100, 0), App.Vector(60, 100, 0)),  # 30
    Part.ArcOfCircle(Part.Circle(App.Vector(60, 108, 0), App.Vector(0, 0, 1), 8), math.radians(90), math.radians(270)),  # 31
    Part.LineSegment(App.Vector(-180, 115, 0), App.Vector(-60, 115, 0)),  # 32
    Part.ArcOfCircle(Part.Circle(App.Vector(-60, 108, 0), App.Vector(0, 0, 1), 8), math.radians(-90), math.radians(90)),  # 33
    Part.LineSegment(App.Vector(-60, 100, 0), App.Vector(-180, 100, 0)),  # 34
    Part.ArcOfCircle(Part.Circle(App.Vector(-180, 108, 0), App.Vector(0, 0, 1), 8), math.radians(90), math.radians(270)),  # 35
], False)
sketch10.addConstraint([
    Sketcher.Constraint("Tangent", 0, 2, 1, 2),
    Sketcher.Constraint("Tangent", 1, 1, 2, 1),
    Sketcher.Constraint("Tangent", 2, 2, 3, 2),
    Sketcher.Constraint("Tangent", 3, 1, 0, 1),
    Sketcher.Constraint("Tangent", 4, 2, 5, 2),
    Sketcher.Constraint("Tangent", 5, 1, 6, 1),
    Sketcher.Constraint("Tangent", 6, 2, 7, 2),
    Sketcher.Constraint("Tangent", 7, 1, 4, 1),
    Sketcher.Constraint("Tangent", 8, 2, 9, 2),
    Sketcher.Constraint("Tangent", 9, 1, 10, 1),
    Sketcher.Constraint("Tangent", 10, 2, 11, 2),
    Sketcher.Constraint("Tangent", 11, 1, 8, 1),
    Sketcher.Constraint("Tangent", 12, 2, 13, 2),
    Sketcher.Constraint("Tangent", 13, 1, 14, 1),
    Sketcher.Constraint("Tangent", 14, 2, 15, 2),
    Sketcher.Constraint("Tangent", 15, 1, 12, 1),
    Sketcher.Constraint("Tangent", 16, 2, 17, 2),
    Sketcher.Constraint("Tangent", 17, 1, 18, 1),
    Sketcher.Constraint("Tangent", 18, 2, 19, 2),
    Sketcher.Constraint("Tangent", 19, 1, 16, 1),
    Sketcher.Constraint("Tangent", 20, 2, 21, 2),
    Sketcher.Constraint("Tangent", 21, 1, 22, 1),
    Sketcher.Constraint("Tangent", 22, 2, 23, 2),
    Sketcher.Constraint("Tangent", 23, 1, 20, 1),
    Sketcher.Constraint("Tangent", 24, 2, 25, 2),
    Sketcher.Constraint("Tangent", 25, 1, 26, 1),
    Sketcher.Constraint("Tangent", 26, 2, 27, 2),
    Sketcher.Constraint("Tangent", 27, 1, 24, 1),
    Sketcher.Constraint("Tangent", 28, 2, 29, 2),
    Sketcher.Constraint("Tangent", 29, 1, 30, 1),
    Sketcher.Constraint("Tangent", 30, 2, 31, 2),
    Sketcher.Constraint("Tangent", 31, 1, 28, 1),
    Sketcher.Constraint("Tangent", 32, 2, 33, 2),
    Sketcher.Constraint("Tangent", 33, 1, 34, 1),
    Sketcher.Constraint("Tangent", 34, 2, 35, 2),
    Sketcher.Constraint("Tangent", 35, 1, 32, 1),
    Sketcher.Constraint("Vertical", 0),
    Sketcher.Constraint("Vertical", 2),
    Sketcher.Constraint("Vertical", 4),
    Sketcher.Constraint("Vertical", 6),
    Sketcher.Constraint("Vertical", 8),
    Sketcher.Constraint("Vertical", 10),
    Sketcher.Constraint("Vertical", 12),
    Sketcher.Constraint("Vertical", 14),
    Sketcher.Constraint("Horizontal", 16),
    Sketcher.Constraint("Horizontal", 18),
    Sketcher.Constraint("Horizontal", 20),
    Sketcher.Constraint("Horizontal", 22),
    Sketcher.Constraint("Vertical", 24),
    Sketcher.Constraint("Vertical", 26),
    Sketcher.Constraint("Horizontal", 28),
    Sketcher.Constraint("Horizontal", 30),
    Sketcher.Constraint("Horizontal", 32),
    Sketcher.Constraint("Horizontal", 34),
    Sketcher.Constraint("Equal", 3, 5),
    Sketcher.Constraint("Equal", 11, 13),
    Sketcher.Constraint("Equal", 7, 17),
    Sketcher.Constraint("Equal", 19, 21),
    Sketcher.Constraint("Equal", 23, 25),
    Sketcher.Constraint("Equal", 31, 33),
    Sketcher.Constraint("Symmetric", 9, 3, 13, 3, -2),
    Sketcher.Constraint("Symmetric", 19, 3, 21, 3, -2),
    Sketcher.Constraint("Symmetric", 1, 3, 25, 3, -2),
    Sketcher.Constraint("Symmetric", 31, 3, 33, 3, -2),
    Sketcher.Constraint("PointOnObject", 5, 3, -2),
    Sketcher.Constraint("Horizontal", 11, 3, 15, 3),
    Sketcher.Constraint("Horizontal", 3, 3, 27, 3),
    Sketcher.Constraint("Equal", 18, 20),
    Sketcher.Constraint("Equal", 30, 32),
    Sketcher.Constraint("Radius", 1, 5.0),
    Sketcher.Constraint("Radius", 9, 10.0),
    Sketcher.Constraint("Radius", 29, 7.5),
    Sketcher.Constraint("DistanceX", 16, 1, 16, 2, 60.0),
    Sketcher.Constraint("DistanceY", 0, 1, 0, 2, 80.0),
    Sketcher.Constraint("DistanceY", 4, 1, 4, 2, 50.0),
    Sketcher.Constraint("DistanceY", 8, 1, 8, 2, 40.0),
    Sketcher.Constraint("DistanceX", -1, 1, 1, 3, 185.0),
    Sketcher.Constraint("DistanceY", 1, 3, -1, 1, 165.0),
    Sketcher.Constraint("DistanceY", 5, 3, -1, 1, 145.0),
    Sketcher.Constraint("DistanceX", -1, 1, 9, 3, 70.0),
    Sketcher.Constraint("DistanceY", 9, 3, -1, 1, 70.0),
    Sketcher.Constraint("DistanceX", -1, 1, 17, 3, 90.0),
    Sketcher.Constraint("DistanceY", 17, 3, -1, 1, 220.0),
    Sketcher.Constraint("DistanceY", -1, 1, 28, 2, 115.0),
    Sketcher.Constraint("DistanceX", 33, 3, 29, 3, 240.0),
    Sketcher.Constraint("DistanceX", 28, 1, 28, 2, 119.348112),
])
pocket9 = body.newObject("PartDesign::Pocket", "Pocket008")
pocket9.Profile = sketch10
pocket9.Type = "ThroughAll"
pocket9.Midplane = True

# Sketch on XZ plane
sketch11 = body.newObject("Sketcher::SketchObject", "Sketch010")
sketch11.AttachmentSupport = (doc.getObject("XZ_Plane"), [""])
sketch11.MapMode = "FlatFace"
sketch11.AttachmentOffset = App.Placement(App.Vector(0, 0, -5), App.Rotation())
sketch11.addGeometry([
    Part.Circle(App.Vector(130, 0, 0), App.Vector(0, 0, 1), 2),
    Part.Circle(App.Vector(190, 0, 0), App.Vector(0, 0, 1), 2),
    Part.Circle(App.Vector(-130, 0, 0), App.Vector(0, 0, 1), 2),
    Part.Circle(App.Vector(-190, 0, 0), App.Vector(0, 0, 1), 2),
], False)
sketch11.addConstraint([
    Sketcher.Constraint("Equal", 0, 1),
    Sketcher.Constraint("Equal", 1, 2),
    Sketcher.Constraint("Equal", 2, 3),
    Sketcher.Constraint("Symmetric", 0, 3, 2, 3, -1, 1),
    Sketcher.Constraint("Symmetric", 1, 3, 3, 3, -1, 1),
    Sketcher.Constraint("PointOnObject", 0, 3, -1),
    Sketcher.Constraint("PointOnObject", 1, 3, -1),
    Sketcher.Constraint("Diameter", 0, 4.0),
    Sketcher.Constraint("DistanceX", -1, 1, 0, 3, 130.0),
    Sketcher.Constraint("DistanceX", -1, 1, 1, 3, 190.0),
])
pocket10 = body.newObject("PartDesign::Pocket", "Pocket009")
pocket10.Profile = sketch11
pocket10.Type = "ThroughAll"
pocket10.Reversed = True

doc.recompute()
